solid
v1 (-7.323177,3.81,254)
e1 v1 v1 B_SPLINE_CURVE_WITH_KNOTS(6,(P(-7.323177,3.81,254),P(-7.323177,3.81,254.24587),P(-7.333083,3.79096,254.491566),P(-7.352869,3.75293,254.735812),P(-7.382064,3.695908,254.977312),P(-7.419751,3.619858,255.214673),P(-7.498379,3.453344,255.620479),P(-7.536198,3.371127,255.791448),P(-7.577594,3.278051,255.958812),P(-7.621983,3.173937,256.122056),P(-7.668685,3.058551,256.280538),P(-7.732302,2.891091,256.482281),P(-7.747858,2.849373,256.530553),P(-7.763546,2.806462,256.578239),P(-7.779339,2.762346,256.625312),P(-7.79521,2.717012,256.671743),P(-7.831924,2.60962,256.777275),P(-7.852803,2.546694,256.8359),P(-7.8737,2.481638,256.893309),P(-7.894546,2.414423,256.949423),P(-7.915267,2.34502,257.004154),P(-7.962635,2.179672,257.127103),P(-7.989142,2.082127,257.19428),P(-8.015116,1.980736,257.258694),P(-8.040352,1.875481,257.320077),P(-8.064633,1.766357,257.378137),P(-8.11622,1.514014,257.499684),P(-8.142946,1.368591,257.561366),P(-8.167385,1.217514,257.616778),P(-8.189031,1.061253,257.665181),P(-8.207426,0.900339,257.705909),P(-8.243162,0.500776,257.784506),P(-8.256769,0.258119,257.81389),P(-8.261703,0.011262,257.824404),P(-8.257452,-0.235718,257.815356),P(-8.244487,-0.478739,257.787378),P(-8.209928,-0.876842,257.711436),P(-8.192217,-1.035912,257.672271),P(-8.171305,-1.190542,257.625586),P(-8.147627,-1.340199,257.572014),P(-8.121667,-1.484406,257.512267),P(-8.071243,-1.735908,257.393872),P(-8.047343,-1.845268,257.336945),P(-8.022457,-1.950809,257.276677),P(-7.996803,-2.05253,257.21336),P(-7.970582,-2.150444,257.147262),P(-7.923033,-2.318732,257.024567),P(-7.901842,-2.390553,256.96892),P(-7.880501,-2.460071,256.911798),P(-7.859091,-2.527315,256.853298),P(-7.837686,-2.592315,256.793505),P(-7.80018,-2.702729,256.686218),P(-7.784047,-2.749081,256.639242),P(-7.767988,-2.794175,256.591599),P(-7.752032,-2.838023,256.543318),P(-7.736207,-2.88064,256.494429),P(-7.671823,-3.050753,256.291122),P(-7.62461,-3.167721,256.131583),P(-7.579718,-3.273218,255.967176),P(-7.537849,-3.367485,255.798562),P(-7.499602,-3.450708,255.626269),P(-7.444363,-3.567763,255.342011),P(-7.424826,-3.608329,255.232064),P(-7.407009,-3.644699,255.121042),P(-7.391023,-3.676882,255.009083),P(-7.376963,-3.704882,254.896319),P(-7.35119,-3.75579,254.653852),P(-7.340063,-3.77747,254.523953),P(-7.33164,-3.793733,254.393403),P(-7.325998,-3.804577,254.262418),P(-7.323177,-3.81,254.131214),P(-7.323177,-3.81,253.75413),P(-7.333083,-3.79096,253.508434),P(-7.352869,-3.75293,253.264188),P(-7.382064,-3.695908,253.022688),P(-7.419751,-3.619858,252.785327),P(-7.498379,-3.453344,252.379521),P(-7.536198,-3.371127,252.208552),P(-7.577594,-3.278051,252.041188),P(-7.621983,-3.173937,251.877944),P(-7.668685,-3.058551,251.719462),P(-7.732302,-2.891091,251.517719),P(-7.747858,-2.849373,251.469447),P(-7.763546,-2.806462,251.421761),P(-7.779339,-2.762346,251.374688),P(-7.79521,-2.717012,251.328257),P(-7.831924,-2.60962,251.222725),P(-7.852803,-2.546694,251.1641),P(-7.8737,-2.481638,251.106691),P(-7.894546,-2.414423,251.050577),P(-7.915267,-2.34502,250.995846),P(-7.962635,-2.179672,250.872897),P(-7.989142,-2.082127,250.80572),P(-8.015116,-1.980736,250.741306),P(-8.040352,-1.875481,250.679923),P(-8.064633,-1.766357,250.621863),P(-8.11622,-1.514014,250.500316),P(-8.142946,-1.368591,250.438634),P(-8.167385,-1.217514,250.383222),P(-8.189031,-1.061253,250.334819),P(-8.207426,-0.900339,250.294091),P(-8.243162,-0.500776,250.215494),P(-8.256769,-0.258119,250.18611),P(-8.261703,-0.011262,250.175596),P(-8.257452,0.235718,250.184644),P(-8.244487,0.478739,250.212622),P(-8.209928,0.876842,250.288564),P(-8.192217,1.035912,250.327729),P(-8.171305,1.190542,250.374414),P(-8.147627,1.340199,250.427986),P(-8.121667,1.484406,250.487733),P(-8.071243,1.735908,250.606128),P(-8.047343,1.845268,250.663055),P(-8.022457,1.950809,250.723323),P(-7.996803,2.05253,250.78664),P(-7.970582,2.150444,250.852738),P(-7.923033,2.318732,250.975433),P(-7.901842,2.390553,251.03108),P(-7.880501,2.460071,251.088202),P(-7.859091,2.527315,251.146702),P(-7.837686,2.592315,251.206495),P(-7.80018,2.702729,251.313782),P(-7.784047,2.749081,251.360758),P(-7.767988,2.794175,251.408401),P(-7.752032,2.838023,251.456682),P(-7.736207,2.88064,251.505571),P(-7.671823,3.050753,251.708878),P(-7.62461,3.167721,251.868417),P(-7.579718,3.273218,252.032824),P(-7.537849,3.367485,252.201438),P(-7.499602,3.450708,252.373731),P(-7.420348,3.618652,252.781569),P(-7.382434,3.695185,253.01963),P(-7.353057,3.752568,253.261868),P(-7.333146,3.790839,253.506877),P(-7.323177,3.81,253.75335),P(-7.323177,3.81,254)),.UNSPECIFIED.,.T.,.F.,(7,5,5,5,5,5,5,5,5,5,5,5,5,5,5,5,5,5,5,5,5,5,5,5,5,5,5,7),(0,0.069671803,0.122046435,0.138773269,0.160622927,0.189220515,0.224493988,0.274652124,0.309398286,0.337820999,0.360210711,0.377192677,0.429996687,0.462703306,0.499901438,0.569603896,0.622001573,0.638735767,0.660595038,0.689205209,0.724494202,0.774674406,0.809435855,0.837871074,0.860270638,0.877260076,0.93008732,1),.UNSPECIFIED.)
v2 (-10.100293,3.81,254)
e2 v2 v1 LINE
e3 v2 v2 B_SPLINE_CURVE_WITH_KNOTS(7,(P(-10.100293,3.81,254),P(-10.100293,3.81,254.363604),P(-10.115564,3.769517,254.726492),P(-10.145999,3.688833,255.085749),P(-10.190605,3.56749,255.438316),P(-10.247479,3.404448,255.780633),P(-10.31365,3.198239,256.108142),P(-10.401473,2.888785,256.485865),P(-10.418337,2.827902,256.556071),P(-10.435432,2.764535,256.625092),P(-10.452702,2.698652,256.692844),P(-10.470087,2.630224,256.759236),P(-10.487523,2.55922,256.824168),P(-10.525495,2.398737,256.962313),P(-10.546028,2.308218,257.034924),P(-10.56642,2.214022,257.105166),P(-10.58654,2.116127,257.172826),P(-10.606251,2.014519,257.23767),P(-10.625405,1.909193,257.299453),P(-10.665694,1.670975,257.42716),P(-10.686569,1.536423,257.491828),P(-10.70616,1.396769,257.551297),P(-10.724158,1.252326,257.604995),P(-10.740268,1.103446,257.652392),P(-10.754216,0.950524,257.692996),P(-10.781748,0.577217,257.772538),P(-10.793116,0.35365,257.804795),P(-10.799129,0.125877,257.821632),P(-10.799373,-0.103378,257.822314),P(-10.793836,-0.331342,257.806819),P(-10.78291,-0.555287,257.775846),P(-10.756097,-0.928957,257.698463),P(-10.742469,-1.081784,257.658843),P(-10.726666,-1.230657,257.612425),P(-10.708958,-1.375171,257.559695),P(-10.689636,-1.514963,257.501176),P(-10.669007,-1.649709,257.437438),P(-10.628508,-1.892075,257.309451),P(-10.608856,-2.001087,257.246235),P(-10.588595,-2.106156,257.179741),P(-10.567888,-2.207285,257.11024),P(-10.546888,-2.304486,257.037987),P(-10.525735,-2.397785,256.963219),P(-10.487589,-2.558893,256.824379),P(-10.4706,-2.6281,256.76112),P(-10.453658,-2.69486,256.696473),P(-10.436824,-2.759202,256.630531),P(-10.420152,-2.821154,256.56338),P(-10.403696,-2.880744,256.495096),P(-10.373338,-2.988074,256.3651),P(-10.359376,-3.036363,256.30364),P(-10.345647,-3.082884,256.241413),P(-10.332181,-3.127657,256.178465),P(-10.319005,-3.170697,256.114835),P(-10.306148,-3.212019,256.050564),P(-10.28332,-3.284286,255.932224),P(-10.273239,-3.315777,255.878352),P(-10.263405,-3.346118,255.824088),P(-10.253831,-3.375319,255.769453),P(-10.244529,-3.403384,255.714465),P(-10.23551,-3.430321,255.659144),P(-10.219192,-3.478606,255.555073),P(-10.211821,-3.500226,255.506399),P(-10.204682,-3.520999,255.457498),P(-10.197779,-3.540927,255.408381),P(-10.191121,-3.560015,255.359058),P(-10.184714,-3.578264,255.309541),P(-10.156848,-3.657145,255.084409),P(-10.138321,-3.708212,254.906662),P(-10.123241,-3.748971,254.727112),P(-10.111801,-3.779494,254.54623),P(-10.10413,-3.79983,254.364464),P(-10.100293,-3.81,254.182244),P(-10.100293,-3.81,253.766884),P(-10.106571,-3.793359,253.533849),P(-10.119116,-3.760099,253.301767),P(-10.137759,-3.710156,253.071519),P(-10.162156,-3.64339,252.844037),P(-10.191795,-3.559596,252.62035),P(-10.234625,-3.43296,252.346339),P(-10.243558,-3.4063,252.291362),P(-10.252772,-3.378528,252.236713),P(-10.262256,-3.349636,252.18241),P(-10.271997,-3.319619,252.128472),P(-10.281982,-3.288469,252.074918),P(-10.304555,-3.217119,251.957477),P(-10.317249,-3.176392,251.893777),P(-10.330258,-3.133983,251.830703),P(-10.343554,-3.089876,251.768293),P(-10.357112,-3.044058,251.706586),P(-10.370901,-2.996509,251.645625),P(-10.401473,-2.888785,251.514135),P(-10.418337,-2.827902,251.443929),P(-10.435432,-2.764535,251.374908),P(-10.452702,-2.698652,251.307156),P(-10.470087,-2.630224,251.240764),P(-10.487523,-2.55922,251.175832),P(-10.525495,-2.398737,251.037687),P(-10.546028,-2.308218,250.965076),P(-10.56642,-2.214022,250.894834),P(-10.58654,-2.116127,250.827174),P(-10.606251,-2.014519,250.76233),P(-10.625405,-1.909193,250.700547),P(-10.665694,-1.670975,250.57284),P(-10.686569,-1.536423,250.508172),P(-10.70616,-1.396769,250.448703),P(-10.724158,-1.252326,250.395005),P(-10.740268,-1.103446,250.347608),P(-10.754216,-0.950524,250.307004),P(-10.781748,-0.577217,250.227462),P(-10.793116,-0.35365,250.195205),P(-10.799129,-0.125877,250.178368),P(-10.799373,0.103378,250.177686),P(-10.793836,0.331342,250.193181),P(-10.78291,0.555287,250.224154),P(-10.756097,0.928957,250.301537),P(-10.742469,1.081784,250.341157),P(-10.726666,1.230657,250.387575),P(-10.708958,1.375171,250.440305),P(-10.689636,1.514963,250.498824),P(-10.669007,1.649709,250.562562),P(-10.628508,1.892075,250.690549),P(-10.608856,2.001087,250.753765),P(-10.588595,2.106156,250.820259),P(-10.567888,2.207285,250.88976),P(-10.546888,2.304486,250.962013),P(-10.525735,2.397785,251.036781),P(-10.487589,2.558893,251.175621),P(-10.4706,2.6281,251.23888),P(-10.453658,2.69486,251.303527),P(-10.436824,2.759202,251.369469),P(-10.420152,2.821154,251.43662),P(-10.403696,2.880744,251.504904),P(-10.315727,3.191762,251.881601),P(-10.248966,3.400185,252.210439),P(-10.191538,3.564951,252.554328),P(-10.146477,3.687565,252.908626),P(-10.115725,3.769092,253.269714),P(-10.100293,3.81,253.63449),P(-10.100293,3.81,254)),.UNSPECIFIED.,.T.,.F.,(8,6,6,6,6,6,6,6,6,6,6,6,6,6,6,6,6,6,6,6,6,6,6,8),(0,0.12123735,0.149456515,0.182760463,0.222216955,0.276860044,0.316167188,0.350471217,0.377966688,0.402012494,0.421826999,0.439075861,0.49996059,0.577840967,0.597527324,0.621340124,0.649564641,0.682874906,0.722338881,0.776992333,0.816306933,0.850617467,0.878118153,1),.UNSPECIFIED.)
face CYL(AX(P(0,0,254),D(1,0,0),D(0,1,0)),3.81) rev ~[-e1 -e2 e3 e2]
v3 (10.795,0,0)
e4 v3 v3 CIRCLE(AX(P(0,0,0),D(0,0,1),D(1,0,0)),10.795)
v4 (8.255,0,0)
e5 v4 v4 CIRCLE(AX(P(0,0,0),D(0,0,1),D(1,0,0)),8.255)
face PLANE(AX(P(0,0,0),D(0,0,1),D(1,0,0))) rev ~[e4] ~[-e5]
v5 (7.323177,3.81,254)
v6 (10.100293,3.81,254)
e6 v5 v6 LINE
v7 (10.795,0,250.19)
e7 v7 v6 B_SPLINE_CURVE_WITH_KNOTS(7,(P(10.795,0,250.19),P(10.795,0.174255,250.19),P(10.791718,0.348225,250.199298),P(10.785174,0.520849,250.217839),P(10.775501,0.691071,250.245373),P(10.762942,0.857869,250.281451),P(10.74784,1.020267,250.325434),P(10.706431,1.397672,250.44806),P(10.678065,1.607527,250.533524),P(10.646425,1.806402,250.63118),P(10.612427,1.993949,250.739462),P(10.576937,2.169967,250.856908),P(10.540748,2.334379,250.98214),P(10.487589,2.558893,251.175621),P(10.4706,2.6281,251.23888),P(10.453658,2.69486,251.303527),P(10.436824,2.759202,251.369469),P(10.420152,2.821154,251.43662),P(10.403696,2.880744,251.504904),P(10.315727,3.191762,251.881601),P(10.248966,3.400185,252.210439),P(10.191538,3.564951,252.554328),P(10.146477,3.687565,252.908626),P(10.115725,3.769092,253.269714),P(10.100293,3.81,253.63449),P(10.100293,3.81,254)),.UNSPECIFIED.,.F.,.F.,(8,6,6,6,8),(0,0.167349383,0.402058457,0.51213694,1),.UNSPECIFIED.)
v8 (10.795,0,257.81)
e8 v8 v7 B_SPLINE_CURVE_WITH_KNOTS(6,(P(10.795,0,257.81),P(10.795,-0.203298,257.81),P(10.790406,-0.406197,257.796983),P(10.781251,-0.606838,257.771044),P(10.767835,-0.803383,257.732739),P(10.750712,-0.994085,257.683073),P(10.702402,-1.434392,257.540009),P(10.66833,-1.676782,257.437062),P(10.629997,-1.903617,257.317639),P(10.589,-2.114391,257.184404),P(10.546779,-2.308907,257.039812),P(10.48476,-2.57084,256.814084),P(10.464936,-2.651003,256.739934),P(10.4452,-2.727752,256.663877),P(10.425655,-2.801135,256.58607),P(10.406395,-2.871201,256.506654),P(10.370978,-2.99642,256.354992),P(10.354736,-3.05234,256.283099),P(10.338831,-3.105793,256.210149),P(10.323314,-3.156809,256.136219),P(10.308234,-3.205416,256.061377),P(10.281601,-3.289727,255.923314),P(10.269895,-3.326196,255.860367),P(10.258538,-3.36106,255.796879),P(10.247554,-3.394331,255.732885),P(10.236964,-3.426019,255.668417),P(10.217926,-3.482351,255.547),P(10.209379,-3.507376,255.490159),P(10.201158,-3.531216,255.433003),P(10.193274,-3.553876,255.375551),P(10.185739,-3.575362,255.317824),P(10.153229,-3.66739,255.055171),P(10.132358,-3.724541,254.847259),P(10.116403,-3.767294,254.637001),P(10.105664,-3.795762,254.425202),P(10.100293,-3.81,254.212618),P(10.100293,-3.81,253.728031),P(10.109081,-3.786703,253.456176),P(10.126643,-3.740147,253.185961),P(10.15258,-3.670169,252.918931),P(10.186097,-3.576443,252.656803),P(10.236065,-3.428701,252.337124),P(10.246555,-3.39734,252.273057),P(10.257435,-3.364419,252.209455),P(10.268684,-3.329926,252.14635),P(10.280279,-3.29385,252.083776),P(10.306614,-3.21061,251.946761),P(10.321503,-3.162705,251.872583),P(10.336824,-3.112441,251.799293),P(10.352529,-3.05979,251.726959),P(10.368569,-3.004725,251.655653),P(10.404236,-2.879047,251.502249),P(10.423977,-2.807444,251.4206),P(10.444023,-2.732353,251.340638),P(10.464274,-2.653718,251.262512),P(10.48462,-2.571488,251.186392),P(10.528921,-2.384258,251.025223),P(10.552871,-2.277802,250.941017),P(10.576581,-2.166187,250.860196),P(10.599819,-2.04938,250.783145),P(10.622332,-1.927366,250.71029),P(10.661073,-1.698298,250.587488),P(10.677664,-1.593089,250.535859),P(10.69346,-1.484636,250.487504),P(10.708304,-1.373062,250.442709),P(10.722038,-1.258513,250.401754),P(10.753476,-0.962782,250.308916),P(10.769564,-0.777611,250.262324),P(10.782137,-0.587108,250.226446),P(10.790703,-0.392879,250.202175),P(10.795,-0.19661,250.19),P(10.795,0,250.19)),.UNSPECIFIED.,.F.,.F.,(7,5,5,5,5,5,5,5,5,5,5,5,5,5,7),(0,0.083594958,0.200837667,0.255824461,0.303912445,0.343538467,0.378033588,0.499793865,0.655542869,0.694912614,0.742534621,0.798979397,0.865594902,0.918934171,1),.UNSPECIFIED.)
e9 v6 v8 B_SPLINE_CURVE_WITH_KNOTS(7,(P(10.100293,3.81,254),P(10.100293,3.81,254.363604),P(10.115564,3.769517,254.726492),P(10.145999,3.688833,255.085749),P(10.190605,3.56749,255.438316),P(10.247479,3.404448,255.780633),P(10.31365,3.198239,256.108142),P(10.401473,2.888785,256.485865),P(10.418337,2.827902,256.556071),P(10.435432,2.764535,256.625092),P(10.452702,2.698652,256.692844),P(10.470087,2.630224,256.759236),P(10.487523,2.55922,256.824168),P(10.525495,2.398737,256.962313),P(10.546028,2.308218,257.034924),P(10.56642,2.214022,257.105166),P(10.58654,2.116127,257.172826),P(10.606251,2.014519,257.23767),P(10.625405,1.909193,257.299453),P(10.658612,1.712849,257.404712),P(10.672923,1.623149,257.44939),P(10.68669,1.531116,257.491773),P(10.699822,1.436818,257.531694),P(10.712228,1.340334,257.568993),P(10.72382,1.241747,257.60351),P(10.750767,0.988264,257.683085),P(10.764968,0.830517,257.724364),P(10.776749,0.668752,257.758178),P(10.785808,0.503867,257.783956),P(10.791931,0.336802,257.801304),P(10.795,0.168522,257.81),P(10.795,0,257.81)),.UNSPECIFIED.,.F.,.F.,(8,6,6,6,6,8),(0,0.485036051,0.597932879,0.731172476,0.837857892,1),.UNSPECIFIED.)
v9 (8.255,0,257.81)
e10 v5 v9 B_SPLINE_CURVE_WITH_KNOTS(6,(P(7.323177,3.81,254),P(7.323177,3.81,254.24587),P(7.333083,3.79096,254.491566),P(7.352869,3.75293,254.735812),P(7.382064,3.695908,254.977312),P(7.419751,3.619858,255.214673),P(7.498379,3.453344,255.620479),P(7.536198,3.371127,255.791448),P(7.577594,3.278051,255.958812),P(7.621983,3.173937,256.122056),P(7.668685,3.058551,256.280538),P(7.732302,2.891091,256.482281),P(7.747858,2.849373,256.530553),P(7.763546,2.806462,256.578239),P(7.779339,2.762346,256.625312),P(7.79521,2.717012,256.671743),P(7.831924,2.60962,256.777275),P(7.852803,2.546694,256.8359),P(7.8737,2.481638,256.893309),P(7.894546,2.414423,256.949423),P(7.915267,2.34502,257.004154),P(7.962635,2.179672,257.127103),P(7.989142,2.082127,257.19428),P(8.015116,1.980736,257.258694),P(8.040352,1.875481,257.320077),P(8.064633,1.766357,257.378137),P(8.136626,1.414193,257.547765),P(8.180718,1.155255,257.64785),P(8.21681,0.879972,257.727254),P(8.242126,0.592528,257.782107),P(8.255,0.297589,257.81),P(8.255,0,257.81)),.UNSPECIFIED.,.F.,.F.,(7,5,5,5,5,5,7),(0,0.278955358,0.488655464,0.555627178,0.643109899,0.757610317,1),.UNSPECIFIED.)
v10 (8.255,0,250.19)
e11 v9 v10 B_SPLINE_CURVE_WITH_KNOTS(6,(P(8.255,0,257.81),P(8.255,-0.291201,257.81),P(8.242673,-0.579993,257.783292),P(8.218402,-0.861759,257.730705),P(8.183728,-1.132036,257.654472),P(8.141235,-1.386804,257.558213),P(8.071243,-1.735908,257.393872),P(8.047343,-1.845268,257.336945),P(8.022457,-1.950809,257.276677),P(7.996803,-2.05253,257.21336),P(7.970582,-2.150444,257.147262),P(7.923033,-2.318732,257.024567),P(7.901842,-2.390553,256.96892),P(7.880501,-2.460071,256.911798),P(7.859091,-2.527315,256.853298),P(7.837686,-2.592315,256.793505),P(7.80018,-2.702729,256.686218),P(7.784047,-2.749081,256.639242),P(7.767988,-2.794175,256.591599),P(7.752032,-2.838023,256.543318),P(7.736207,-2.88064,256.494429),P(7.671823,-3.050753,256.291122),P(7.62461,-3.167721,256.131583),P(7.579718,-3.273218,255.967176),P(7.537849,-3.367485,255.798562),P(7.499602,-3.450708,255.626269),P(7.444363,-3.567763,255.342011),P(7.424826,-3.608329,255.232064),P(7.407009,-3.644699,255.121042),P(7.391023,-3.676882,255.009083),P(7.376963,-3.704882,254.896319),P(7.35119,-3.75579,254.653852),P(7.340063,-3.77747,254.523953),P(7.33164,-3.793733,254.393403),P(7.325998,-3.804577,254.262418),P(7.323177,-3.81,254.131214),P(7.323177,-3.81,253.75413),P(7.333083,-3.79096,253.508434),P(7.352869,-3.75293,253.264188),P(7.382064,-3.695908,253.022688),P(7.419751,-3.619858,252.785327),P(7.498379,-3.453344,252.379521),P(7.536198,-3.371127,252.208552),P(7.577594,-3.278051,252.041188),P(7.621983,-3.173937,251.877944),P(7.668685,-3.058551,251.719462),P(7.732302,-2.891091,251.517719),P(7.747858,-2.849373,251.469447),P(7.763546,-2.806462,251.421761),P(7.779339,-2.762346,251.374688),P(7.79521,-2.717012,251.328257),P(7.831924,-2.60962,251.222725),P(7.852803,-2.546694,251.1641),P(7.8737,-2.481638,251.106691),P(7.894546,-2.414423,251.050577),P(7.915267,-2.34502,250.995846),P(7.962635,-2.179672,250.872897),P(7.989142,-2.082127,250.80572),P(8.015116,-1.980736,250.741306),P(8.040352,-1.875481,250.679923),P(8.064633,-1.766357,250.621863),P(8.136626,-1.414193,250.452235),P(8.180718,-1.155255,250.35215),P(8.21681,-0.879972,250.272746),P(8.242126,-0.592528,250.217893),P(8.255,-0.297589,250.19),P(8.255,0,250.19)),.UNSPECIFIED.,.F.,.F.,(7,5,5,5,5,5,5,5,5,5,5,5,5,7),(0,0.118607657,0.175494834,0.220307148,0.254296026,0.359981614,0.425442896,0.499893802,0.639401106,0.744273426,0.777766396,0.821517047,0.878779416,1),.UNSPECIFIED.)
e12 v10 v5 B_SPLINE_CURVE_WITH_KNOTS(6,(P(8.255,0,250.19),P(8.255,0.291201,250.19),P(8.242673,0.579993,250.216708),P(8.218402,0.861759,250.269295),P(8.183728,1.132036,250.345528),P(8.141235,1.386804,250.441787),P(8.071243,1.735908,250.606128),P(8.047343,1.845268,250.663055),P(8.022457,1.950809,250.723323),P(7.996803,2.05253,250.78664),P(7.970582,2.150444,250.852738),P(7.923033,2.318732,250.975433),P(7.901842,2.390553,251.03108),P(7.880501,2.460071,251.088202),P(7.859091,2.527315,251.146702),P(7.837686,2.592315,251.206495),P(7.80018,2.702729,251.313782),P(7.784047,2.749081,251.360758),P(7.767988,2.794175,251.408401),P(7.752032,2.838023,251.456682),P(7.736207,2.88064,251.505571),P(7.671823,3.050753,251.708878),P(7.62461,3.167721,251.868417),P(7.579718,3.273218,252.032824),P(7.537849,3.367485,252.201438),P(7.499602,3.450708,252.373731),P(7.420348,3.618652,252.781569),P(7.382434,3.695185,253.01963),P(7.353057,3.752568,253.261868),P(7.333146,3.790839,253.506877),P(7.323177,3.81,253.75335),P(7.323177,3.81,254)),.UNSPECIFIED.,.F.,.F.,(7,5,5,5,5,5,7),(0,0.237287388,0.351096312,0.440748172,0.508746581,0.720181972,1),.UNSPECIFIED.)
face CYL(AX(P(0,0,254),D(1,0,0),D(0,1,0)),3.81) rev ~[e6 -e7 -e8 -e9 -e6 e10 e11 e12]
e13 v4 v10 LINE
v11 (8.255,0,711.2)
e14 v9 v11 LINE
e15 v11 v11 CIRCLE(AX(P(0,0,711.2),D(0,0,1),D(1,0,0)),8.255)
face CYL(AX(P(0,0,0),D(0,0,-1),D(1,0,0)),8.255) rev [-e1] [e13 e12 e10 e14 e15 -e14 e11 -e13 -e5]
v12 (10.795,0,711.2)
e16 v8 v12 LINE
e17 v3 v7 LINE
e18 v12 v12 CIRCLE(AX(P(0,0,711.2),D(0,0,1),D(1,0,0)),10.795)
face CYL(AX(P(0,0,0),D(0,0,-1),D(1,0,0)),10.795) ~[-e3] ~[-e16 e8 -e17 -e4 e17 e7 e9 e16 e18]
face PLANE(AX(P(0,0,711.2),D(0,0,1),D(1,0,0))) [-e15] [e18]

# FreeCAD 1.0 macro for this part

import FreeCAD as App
import Part
import Sketcher

V = App.Vector
Q = App.Units.Quantity

doc = App.newDocument("Part")
body = doc.addObject("PartDesign::Body", "Body")

sketch1 = body.newObject("Sketcher::SketchObject", "Sketch")
sketch1.AttachmentSupport = (doc.getObject("XY_Plane"), [""])
sketch1.MapMode = "FlatFace"
sketch1.addGeometry(Part.Circle(V(0, 0, 0), V(0, 0, 1), 11), False)
sketch1.addGeometry(Part.Circle(V(0, 0, 0), V(0, 0, 1), 8), False)
sketch1.addConstraint(Sketcher.Constraint("Coincident", 0, 3, -1, 1))
sketch1.addConstraint(Sketcher.Constraint("Coincident", 1, 3, -1, 1))
sketch1.addConstraint(Sketcher.Constraint("Diameter", 0, Q("0.85 in")))
sketch1.addConstraint(Sketcher.Constraint("Diameter", 1, Q("0.65 in")))
pad1 = body.newObject("PartDesign::Pad", "Pad")
pad1.Profile = sketch1
pad1.Length = Q("28 in")

sketch2 = body.newObject("Sketcher::SketchObject", "Sketch001")
sketch2.AttachmentSupport = (doc.getObject("YZ_Plane"), [""])
sketch2.MapMode = "FlatFace"
sketch2.addGeometry(Part.Circle(V(0, 254, 0), V(0, 0, 1), 3.8), False)
sketch2.addConstraint(Sketcher.Constraint("PointOnObject", 0, 3, -2))
sketch2.addConstraint(Sketcher.Constraint("Diameter", 0, Q("0.3 in")))
sketch2.addConstraint(Sketcher.Constraint("DistanceY", -1, 1, 0, 3, Q("10 in")))
pocket1 = body.newObject("PartDesign::Pocket", "Pocket")
pocket1.Profile = sketch2
pocket1.Length = Q("1 in")
pocket1.Midplane = True

doc.recompute()
